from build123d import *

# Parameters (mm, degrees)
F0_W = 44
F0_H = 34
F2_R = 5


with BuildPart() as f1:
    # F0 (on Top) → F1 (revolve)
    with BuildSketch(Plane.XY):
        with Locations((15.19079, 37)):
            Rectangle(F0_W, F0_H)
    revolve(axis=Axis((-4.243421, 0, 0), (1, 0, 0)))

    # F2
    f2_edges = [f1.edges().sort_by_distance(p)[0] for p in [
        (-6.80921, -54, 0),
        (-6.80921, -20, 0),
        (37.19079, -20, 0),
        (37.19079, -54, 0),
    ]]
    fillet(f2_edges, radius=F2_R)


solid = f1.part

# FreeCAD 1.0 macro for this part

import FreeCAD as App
import Part
import Sketcher


def edges_at(feature, points):
    """Names of the edges that pass closest to the given points."""
    edges = feature.Shape.Edges
    near = lambda p: min(range(len(edges)), key=lambda i: edges[i].distToShape(Part.Vertex(*p))[0])
    return sorted({f"Edge{near(p) + 1}" for p in points})

doc = App.newDocument("Part")
body = doc.addObject("PartDesign::Body", "Body")

# Sketch on XY plane
sketch1 = body.newObject("Sketcher::SketchObject", "Sketch")
sketch1.AttachmentSupport = (doc.getObject("XY_Plane"), [""])
sketch1.MapMode = "FlatFace"
sketch1.addGeometry(Part.LineSegment(App.Vector(-6.80921, 54, 0), App.Vector(-6.80921, 20, 0)), False)
sketch1.addGeometry(Part.LineSegment(App.Vector(-6.80921, 20, 0), App.Vector(37.19079, 20, 0)), False)
sketch1.addGeometry(Part.LineSegment(App.Vector(37.19079, 20, 0), App.Vector(37.19079, 54, 0)), False)
sketch1.addGeometry(Part.LineSegment(App.Vector(37.19079, 54, 0), App.Vector(-6.80921, 54, 0)), False)
sketch1.addConstraint(Sketcher.Constraint("Coincident", 0, 2, 1, 1))
sketch1.addConstraint(Sketcher.Constraint("Coincident", 1, 2, 2, 1))
sketch1.addConstraint(Sketcher.Constraint("Coincident", 2, 2, 3, 1))
sketch1.addConstraint(Sketcher.Constraint("Coincident", 3, 2, 0, 1))
sketch1.addConstraint(Sketcher.Constraint("Vertical", 0))
sketch1.addConstraint(Sketcher.Constraint("Horizontal", 1))
sketch1.addConstraint(Sketcher.Constraint("Vertical", 2))
sketch1.addConstraint(Sketcher.Constraint("Horizontal", 3))
sketch1.addConstraint(Sketcher.Constraint("DistanceX", 1, 1, 1, 2, 44.0))
sketch1.addConstraint(Sketcher.Constraint("DistanceY", 0, 2, 0, 1, 34.0))
sketch1.addConstraint(Sketcher.Constraint("DistanceY", -1, 1, 0, 2, 20.0))
sketch1.addConstraint(Sketcher.Constraint("DistanceX", 0, 2, -1, 1, 6.80921))
revolution = body.newObject("PartDesign::Revolution", "Revolution")
revolution.Profile = sketch1
revolution.ReferenceAxis = (sketch1, ["H_Axis"])
revolution.Angle = 360
doc.recompute()

fillet = body.newObject("PartDesign::Fillet", "Fillet")
fillet.Base = (revolution, edges_at(revolution, [
    (-6.809, -54, 0),
    (-6.809, -20, 0),
    (37.191, -20, 0),
    (37.191, -54, 0),
]))
fillet.Radius = 5

doc.recompute()
